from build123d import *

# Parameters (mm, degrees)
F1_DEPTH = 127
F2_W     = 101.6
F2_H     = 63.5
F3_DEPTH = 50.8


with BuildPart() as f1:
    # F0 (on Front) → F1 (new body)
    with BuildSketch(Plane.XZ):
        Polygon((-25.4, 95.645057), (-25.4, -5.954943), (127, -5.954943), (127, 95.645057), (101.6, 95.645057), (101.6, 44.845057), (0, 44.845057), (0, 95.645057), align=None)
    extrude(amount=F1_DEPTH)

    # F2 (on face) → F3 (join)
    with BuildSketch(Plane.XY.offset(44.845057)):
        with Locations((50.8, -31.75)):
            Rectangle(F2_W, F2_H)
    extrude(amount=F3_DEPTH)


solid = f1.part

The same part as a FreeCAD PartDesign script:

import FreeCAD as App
import Part
import Sketcher
from FreeCAD import Vector
Q = App.Units.Quantity


def add_polygon(sketch, points):
    """Adds a closed chain of lines whose ends are joined by coincident constraints."""
    first, n = sketch.GeometryCount, len(points)
    for a, b in zip(points, points[1:] + points[:1]):
        sketch.addGeometry(Part.LineSegment(App.Vector(*a, 0), App.Vector(*b, 0)), False)
    for i in range(n):
        sketch.addConstraint(Sketcher.Constraint("Coincident", first + i, 2, first + (i + 1) % n, 1))

doc = App.newDocument("Part")
body = doc.addObject("PartDesign::Body", "Body")

# Sketch on XZ plane
sketch1 = body.newObject("Sketcher::SketchObject", "Sketch")
sketch1.AttachmentSupport = (doc.getObject("XZ_Plane"), [""])
sketch1.MapMode = "FlatFace"
add_polygon(sketch1, [(-25, 96), (-25, -6), (127, -6), (127, 96), (102, 96), (102, 45), (0, 45), (0, 96)])  # lines 0-7
sketch1.addConstraint(Sketcher.Constraint("Vertical", 0))
sketch1.addConstraint(Sketcher.Constraint("Horizontal", 1))
sketch1.addConstraint(Sketcher.Constraint("Vertical", 2))
sketch1.addConstraint(Sketcher.Constraint("Horizontal", 3))
sketch1.addConstraint(Sketcher.Constraint("Vertical", 4))
sketch1.addConstraint(Sketcher.Constraint("Horizontal", 5))
sketch1.addConstraint(Sketcher.Constraint("Vertical", 6))
sketch1.addConstraint(Sketcher.Constraint("Horizontal", 7))
sketch1.addConstraint(Sketcher.Constraint("PointOnObject", 5, 2, -2))
sketch1.addConstraint(Sketcher.Constraint("Horizontal", 3, 2, 6, 2))
sketch1.addConstraint(Sketcher.Constraint("Equal", 3, 7))
sketch1.addConstraint(Sketcher.Constraint("Equal", 5, 0))
sketch1.addConstraint(Sketcher.Constraint("DistanceX", 1, 1, 1, 2, Q("6 in")))
sketch1.addConstraint(Sketcher.Constraint("DistanceX", 3, 2, 3, 1, Q("1 in")))
sketch1.addConstraint(Sketcher.Constraint("DistanceY", 4, 2, 4, 1, Q("2 in")))
sketch1.addConstraint(Sketcher.Constraint("DistanceY", 0, 2, -1, 1, Q("5.954943 mm")))
pad1 = body.newObject("PartDesign::Pad", "Pad")
pad1.Profile = sketch1
pad1.Length = Q("5 in")

# Sketch on XY plane
sketch2 = body.newObject("Sketcher::SketchObject", "Sketch001")
sketch2.AttachmentSupport = (doc.getObject("XY_Plane"), [""])
sketch2.MapMode = "FlatFace"
sketch2.AttachmentOffset = App.Placement(Vector(0, 0, 44.845057), App.Rotation())
add_polygon(sketch2, [(0, 0), (0, -64), (102, -64), (102, 0)])  # lines 0-3
sketch2.addConstraint(Sketcher.Constraint("Vertical", 0))
sketch2.addConstraint(Sketcher.Constraint("Horizontal", 1))
sketch2.addConstraint(Sketcher.Constraint("Vertical", 2))
sketch2.addConstraint(Sketcher.Constraint("Horizontal", 3))
sketch2.addConstraint(Sketcher.Constraint("Coincident", 3, 2, -1, 1))
sketch2.addConstraint(Sketcher.Constraint("DistanceX", 1, 1, 1, 2, Q("4 in")))
sketch2.addConstraint(Sketcher.Constraint("DistanceY", 0, 2, 0, 1, Q("2.5 in")))
pad2 = body.newObject("PartDesign::Pad", "Pad001")
pad2.Profile = sketch2
pad2.Length = Q("2 in")

doc.recompute()
